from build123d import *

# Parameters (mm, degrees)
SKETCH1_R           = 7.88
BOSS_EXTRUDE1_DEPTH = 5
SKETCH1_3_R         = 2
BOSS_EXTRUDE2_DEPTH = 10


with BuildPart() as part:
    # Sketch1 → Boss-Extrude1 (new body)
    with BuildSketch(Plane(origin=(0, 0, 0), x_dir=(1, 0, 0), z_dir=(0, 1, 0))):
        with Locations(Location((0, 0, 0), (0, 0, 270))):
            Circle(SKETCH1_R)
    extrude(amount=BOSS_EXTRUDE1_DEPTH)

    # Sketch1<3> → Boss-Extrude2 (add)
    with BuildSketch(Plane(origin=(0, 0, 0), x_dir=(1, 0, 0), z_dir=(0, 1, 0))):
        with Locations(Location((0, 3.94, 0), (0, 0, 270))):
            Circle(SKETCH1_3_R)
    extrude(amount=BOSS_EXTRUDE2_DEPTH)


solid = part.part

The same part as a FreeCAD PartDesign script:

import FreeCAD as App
import Part
import Sketcher
from FreeCAD import Vector

doc = App.newDocument("Part")
params = doc.addObject("Spreadsheet::Sheet", "Params")
for row, (alias, value) in enumerate([
    ("sketch1_diameter", "15.76 mm"),
    ("pad1_length", "5 mm"),
    ("sketch2_diameter", "4 mm"),
    ("pad2_length", "10 mm"),
], start=1):
    params.set(f"A{row}", alias)
    params.set(f"B{row}", "=" + value)
    params.setAlias(f"B{row}", alias)

body = doc.addObject("PartDesign::Body", "Body")

# Sketch on XZ plane
sketch1 = doc.addObject("Sketcher::SketchObject", "Sketch")
body.addObject(sketch1)
sketch1.AttachmentSupport = (doc.XZ_Plane, [""])
sketch1.MapMode = "FlatFace"
sketch1.addGeometry(Part.Circle(Vector(0, 0, 0), Vector(0, 0, 1), 8), False)
sketch1.addConstraint([
    Sketcher.Constraint("Coincident", 0, 3, -1, 1),
    Sketcher.Constraint("Diameter", 0, 15.76),
])
sketch1.setExpression("Constraints[1]", "Params.sketch1_diameter")
pad1 = doc.addObject("PartDesign::Pad", "Pad")
body.addObject(pad1)
pad1.Profile = sketch1
pad1.setExpression("Length", "Params.pad1_length")
pad1.Reversed = True

# Sketch on XZ plane
sketch2 = doc.addObject("Sketcher::SketchObject", "Sketch001")
body.addObject(sketch2)
sketch2.AttachmentSupport = (doc.XZ_Plane, [""])
sketch2.MapMode = "FlatFace"
sketch2.addGeometry(Part.Circle(Vector(0, -3.9, 0), Vector(0, 0, 1), 2), False)
sketch2.addConstraint([
    Sketcher.Constraint("PointOnObject", 0, 3, -2),
    Sketcher.Constraint("Diameter", 0, 4.0),
    Sketcher.Constraint("DistanceY", 0, 3, -1, 1, 3.94),
])
sketch2.setExpression("Constraints[1]", "Params.sketch2_diameter")
pad2 = doc.addObject("PartDesign::Pad", "Pad001")
body.addObject(pad2)
pad2.Profile = sketch2
pad2.setExpression("Length", "Params.pad2_length")
pad2.Reversed = True

doc.recompute()
